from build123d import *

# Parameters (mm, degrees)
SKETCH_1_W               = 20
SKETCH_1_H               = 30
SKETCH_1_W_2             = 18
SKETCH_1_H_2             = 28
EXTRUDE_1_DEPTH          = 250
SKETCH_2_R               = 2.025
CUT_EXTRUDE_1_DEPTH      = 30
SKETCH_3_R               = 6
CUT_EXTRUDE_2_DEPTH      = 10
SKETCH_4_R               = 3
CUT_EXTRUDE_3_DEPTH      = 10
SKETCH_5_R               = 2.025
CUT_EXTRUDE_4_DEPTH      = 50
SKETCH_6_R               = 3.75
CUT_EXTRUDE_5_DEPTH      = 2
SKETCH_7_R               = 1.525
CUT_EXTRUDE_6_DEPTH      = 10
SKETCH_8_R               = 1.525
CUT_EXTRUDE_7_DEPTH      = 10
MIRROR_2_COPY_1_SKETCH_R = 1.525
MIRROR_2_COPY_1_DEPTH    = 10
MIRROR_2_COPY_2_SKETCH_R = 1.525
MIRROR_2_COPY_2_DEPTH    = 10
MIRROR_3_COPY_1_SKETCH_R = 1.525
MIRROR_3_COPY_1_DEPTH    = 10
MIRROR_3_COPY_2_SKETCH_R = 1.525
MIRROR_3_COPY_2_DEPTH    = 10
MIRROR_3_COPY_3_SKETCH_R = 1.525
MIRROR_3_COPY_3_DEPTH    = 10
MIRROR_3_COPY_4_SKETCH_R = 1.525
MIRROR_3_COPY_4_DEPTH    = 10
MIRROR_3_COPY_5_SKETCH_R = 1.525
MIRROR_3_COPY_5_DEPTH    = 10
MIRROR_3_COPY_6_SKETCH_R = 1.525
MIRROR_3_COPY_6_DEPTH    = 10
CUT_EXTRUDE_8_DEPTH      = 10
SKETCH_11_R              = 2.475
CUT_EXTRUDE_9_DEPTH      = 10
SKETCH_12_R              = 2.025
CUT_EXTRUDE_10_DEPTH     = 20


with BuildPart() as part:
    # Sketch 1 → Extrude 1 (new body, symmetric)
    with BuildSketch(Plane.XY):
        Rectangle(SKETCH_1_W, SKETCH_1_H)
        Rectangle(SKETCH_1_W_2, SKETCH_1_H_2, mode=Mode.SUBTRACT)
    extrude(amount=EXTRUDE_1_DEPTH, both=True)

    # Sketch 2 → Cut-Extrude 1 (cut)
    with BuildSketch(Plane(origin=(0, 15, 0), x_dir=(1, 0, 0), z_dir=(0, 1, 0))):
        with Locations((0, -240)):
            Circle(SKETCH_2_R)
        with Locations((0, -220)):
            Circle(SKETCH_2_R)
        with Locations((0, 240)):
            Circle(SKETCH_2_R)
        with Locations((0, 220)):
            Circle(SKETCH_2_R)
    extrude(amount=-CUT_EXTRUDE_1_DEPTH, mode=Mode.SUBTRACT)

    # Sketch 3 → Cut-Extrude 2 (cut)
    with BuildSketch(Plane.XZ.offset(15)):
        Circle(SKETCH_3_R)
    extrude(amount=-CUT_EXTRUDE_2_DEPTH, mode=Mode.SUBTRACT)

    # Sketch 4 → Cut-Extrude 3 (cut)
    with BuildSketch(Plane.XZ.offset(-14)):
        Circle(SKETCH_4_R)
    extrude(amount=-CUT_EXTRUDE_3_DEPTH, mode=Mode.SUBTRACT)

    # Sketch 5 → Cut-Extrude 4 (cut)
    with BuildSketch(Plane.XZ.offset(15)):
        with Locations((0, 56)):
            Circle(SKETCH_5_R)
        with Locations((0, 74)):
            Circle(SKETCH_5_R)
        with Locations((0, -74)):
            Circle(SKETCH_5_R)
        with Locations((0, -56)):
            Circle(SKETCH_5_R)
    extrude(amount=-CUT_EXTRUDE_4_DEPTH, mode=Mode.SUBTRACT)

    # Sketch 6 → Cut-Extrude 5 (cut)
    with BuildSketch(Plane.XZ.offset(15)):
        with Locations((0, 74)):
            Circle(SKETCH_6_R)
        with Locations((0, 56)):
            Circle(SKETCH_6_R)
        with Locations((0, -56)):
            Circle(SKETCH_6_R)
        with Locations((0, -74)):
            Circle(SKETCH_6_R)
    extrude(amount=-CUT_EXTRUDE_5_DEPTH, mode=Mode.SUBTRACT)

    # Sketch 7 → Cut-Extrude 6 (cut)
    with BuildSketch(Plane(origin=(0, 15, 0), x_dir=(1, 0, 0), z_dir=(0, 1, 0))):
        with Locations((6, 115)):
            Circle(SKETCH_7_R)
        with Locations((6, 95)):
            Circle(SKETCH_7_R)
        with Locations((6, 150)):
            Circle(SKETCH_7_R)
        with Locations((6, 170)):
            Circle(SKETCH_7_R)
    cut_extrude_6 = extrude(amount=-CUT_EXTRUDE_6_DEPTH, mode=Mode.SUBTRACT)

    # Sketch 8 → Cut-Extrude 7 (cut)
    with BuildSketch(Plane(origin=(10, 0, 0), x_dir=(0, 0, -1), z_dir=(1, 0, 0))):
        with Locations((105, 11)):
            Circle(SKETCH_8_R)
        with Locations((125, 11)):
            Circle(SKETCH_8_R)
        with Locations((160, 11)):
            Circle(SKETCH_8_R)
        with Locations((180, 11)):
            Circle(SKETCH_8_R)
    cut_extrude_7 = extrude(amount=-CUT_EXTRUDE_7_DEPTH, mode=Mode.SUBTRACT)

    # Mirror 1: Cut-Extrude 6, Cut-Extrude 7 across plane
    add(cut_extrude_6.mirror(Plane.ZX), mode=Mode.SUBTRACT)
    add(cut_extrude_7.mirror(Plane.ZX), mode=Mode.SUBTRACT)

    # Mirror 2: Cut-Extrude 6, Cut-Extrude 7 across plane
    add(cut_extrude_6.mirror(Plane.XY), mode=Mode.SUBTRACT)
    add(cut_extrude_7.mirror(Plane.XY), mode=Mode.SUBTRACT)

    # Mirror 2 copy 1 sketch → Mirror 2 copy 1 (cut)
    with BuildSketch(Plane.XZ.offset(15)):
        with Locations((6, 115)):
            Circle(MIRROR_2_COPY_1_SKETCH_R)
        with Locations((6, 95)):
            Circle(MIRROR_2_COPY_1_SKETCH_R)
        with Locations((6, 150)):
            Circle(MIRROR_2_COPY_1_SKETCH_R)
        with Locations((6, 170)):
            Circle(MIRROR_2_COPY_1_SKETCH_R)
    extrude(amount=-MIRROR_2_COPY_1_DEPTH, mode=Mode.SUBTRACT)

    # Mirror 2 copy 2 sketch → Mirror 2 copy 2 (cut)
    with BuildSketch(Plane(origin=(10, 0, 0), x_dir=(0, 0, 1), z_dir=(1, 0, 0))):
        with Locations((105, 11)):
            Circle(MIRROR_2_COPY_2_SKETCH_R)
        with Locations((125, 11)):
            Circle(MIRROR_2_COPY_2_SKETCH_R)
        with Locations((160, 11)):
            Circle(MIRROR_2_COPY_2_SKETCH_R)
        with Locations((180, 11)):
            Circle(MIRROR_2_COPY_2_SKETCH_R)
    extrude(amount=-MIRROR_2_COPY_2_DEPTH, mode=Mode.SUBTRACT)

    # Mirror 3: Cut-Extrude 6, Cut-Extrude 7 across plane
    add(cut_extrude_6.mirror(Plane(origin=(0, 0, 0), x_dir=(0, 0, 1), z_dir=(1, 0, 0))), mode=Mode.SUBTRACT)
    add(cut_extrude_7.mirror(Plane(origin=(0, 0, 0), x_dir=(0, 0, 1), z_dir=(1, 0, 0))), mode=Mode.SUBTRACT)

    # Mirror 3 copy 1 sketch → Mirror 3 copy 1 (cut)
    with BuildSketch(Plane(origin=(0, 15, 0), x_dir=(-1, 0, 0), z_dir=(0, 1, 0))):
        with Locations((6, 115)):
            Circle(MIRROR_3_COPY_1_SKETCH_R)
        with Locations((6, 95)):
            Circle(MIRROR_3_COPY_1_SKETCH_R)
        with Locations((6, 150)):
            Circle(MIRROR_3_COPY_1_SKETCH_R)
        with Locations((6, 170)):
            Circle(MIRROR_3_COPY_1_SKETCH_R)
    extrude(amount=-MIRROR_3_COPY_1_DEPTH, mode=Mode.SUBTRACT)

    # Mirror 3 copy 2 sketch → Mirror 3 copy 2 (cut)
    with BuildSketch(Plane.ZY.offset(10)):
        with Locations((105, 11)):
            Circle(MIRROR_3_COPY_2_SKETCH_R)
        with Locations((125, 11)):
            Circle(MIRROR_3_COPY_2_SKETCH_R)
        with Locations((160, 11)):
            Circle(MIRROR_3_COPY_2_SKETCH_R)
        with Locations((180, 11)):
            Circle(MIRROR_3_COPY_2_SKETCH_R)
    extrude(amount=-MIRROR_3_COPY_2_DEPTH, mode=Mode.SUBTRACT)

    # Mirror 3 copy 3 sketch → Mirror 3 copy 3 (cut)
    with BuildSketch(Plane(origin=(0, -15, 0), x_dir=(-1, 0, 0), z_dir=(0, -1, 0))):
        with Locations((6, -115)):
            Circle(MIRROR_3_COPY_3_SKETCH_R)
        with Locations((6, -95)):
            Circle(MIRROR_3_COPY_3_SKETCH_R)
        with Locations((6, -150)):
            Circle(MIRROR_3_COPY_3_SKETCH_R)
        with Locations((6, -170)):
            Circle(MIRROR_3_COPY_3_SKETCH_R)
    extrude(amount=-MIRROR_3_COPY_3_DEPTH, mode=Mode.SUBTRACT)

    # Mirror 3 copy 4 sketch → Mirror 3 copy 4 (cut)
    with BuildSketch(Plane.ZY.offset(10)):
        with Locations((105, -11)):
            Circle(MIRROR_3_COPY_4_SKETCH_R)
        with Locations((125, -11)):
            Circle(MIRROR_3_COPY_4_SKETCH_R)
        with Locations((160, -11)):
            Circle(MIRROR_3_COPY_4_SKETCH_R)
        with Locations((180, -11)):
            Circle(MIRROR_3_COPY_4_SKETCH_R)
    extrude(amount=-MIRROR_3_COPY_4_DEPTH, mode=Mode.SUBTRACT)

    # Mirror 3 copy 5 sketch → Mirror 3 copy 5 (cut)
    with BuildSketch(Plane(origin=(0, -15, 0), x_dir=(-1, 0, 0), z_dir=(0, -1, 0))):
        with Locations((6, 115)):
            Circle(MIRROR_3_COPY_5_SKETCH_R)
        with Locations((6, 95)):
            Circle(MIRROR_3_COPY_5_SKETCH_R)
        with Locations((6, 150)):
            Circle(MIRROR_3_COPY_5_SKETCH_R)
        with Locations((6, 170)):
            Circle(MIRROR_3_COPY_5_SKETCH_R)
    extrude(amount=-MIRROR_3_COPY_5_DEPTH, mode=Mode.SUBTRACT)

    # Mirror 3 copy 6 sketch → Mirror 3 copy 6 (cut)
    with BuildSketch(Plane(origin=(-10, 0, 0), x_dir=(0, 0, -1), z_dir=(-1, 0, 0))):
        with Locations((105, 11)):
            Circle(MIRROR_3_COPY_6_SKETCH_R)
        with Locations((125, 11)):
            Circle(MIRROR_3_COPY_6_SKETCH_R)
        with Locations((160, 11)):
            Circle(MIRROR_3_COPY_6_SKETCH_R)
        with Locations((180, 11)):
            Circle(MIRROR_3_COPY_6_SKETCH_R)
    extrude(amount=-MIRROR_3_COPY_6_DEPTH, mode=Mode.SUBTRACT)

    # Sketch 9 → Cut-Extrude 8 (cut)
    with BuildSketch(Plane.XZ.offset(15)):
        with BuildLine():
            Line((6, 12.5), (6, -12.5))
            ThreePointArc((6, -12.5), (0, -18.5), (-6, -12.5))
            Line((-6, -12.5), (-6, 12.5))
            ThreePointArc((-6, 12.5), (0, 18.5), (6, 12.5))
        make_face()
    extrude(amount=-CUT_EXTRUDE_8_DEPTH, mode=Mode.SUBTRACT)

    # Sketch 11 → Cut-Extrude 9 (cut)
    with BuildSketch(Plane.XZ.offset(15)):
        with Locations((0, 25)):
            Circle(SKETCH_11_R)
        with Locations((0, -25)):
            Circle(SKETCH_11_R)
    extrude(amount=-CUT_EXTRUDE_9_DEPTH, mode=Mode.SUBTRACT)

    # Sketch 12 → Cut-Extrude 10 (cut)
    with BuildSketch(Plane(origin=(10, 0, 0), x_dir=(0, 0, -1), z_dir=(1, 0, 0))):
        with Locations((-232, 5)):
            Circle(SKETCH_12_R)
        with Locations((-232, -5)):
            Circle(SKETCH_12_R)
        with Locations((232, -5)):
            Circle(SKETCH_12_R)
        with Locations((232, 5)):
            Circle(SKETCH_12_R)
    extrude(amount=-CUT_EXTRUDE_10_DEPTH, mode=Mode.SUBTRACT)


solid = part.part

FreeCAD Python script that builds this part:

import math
import FreeCAD as App
import Part
import Sketcher
from FreeCAD import Vector

doc = App.newDocument("Part")
body = doc.addObject("PartDesign::Body", "Body")

sketch1 = doc.addObject("Sketcher::SketchObject", "Sketch")
body.addObject(sketch1)
sketch1.AttachmentSupport = (doc.XY_Plane, [""])
sketch1.MapMode = "FlatFace"
sketch1.addGeometry(Part.LineSegment(Vector(-10, 15, 0), Vector(-10, -15, 0)), False)
sketch1.addGeometry(Part.LineSegment(Vector(-10, -15, 0), Vector(10, -15, 0)), False)
sketch1.addGeometry(Part.LineSegment(Vector(10, -15, 0), Vector(10, 15, 0)), False)
sketch1.addGeometry(Part.LineSegment(Vector(10, 15, 0), Vector(-10, 15, 0)), False)
sketch1.addGeometry(Part.LineSegment(Vector(9, -14, 0), Vector(-9, -14, 0)), False)
sketch1.addGeometry(Part.LineSegment(Vector(-9, -14, 0), Vector(-9, 14, 0)), False)
sketch1.addGeometry(Part.LineSegment(Vector(-9, 14, 0), Vector(9, 14, 0)), False)
sketch1.addGeometry(Part.LineSegment(Vector(9, 14, 0), Vector(9, -14, 0)), False)
sketch1.addConstraint(Sketcher.Constraint("Coincident", 0, 2, 1, 1))
sketch1.addConstraint(Sketcher.Constraint("Coincident", 1, 2, 2, 1))
sketch1.addConstraint(Sketcher.Constraint("Coincident", 2, 2, 3, 1))
sketch1.addConstraint(Sketcher.Constraint("Coincident", 3, 2, 0, 1))
sketch1.addConstraint(Sketcher.Constraint("Coincident", 4, 2, 5, 1))
sketch1.addConstraint(Sketcher.Constraint("Coincident", 5, 2, 6, 1))
sketch1.addConstraint(Sketcher.Constraint("Coincident", 6, 2, 7, 1))
sketch1.addConstraint(Sketcher.Constraint("Coincident", 7, 2, 4, 1))
sketch1.addConstraint(Sketcher.Constraint("Vertical", 0))
sketch1.addConstraint(Sketcher.Constraint("Horizontal", 1))
sketch1.addConstraint(Sketcher.Constraint("Vertical", 2))
sketch1.addConstraint(Sketcher.Constraint("Horizontal", 3))
sketch1.addConstraint(Sketcher.Constraint("Horizontal", 4))
sketch1.addConstraint(Sketcher.Constraint("Vertical", 5))
sketch1.addConstraint(Sketcher.Constraint("Horizontal", 6))
sketch1.addConstraint(Sketcher.Constraint("Vertical", 7))
sketch1.addConstraint(Sketcher.Constraint("Symmetric", 0, 2, 2, 2, -1, 1))
sketch1.addConstraint(Sketcher.Constraint("Symmetric", 4, 2, 6, 2, -1, 1))
sketch1.addConstraint(Sketcher.Constraint("DistanceX", 1, 1, 1, 2, 20.0))
sketch1.addConstraint(Sketcher.Constraint("DistanceX", 4, 2, 4, 1, 18.0))
sketch1.addConstraint(Sketcher.Constraint("DistanceY", 0, 2, 0, 1, 30.0))
sketch1.addConstraint(Sketcher.Constraint("DistanceY", 5, 1, 5, 2, 28.0))
pad1 = doc.addObject("PartDesign::Pad", "Pad")
body.addObject(pad1)
pad1.Profile = sketch1
pad1.Length = 500
pad1.Midplane = True

sketch2 = doc.addObject("Sketcher::SketchObject", "Sketch001")
body.addObject(sketch2)
sketch2.AttachmentSupport = (doc.XZ_Plane, [""])
sketch2.MapMode = "FlatFace"
sketch2.AttachmentOffset = App.Placement(Vector(0, 0, -15), App.Rotation())
sketch2.addGeometry(Part.Circle(Vector(0, 240, 0), Vector(0, 0, 1), 2.025), False)
sketch2.addGeometry(Part.Circle(Vector(0, 220, 0), Vector(0, 0, 1), 2.025), False)
sketch2.addGeometry(Part.Circle(Vector(0, -240, 0), Vector(0, 0, 1), 2.025), False)
sketch2.addGeometry(Part.Circle(Vector(0, -220, 0), Vector(0, 0, 1), 2.025), False)
sketch2.addConstraint(Sketcher.Constraint("Equal", 0, 1))
sketch2.addConstraint(Sketcher.Constraint("Equal", 1, 2))
sketch2.addConstraint(Sketcher.Constraint("Equal", 2, 3))
sketch2.addConstraint(Sketcher.Constraint("Symmetric", 0, 3, 2, 3, -1, 1))
sketch2.addConstraint(Sketcher.Constraint("Symmetric", 1, 3, 3, 3, -1, 1))
sketch2.addConstraint(Sketcher.Constraint("PointOnObject", 0, 3, -2))
sketch2.addConstraint(Sketcher.Constraint("PointOnObject", 1, 3, -2))
sketch2.addConstraint(Sketcher.Constraint("Diameter", 0, 4.05))
sketch2.addConstraint(Sketcher.Constraint("DistanceY", -1, 1, 0, 3, 240.0))
sketch2.addConstraint(Sketcher.Constraint("DistanceY", -1, 1, 1, 3, 220.0))
pocket1 = doc.addObject("PartDesign::Pocket", "Pocket")
body.addObject(pocket1)
pocket1.Profile = sketch2
pocket1.Length = 30
pocket1.Reversed = True

sketch3 = doc.addObject("Sketcher::SketchObject", "Sketch002")
body.addObject(sketch3)
sketch3.AttachmentSupport = (doc.XZ_Plane, [""])
sketch3.MapMode = "FlatFace"
sketch3.AttachmentOffset = App.Placement(Vector(0, 0, 15), App.Rotation())
sketch3.addGeometry(Part.Circle(Vector(0, 0, 0), Vector(0, 0, 1), 6), False)
sketch3.addConstraint(Sketcher.Constraint("Coincident", 0, 3, -1, 1))
sketch3.addConstraint(Sketcher.Constraint("Diameter", 0, 12.0))
pocket2 = doc.addObject("PartDesign::Pocket", "Pocket001")
body.addObject(pocket2)
pocket2.Profile = sketch3
pocket2.Length = 10

sketch4 = doc.addObject("Sketcher::SketchObject", "Sketch003")
body.addObject(sketch4)
sketch4.AttachmentSupport = (doc.XZ_Plane, [""])
sketch4.MapMode = "FlatFace"
sketch4.AttachmentOffset = App.Placement(Vector(0, 0, -14), App.Rotation())
sketch4.addGeometry(Part.Circle(Vector(0, 0, 0), Vector(0, 0, 1), 3), False)
sketch4.addConstraint(Sketcher.Constraint("Coincident", 0, 3, -1, 1))
sketch4.addConstraint(Sketcher.Constraint("Diameter", 0, 6.0))
pocket3 = doc.addObject("PartDesign::Pocket", "Pocket002")
body.addObject(pocket3)
pocket3.Profile = sketch4
pocket3.Length = 10

sketch5 = doc.addObject("Sketcher::SketchObject", "Sketch004")
body.addObject(sketch5)
sketch5.AttachmentSupport = (doc.XZ_Plane, [""])
sketch5.MapMode = "FlatFace"
sketch5.AttachmentOffset = App.Placement(Vector(0, 0, 15), App.Rotation())
sketch5.addGeometry(Part.Circle(Vector(0, 56, 0), Vector(0, 0, 1), 2.025), False)
sketch5.addGeometry(Part.Circle(Vector(0, 74, 0), Vector(0, 0, 1), 2.025), False)
sketch5.addGeometry(Part.Circle(Vector(0, -74, 0), Vector(0, 0, 1), 2.025), False)
sketch5.addGeometry(Part.Circle(Vector(0, -56, 0), Vector(0, 0, 1), 2.025), False)
sketch5.addConstraint(Sketcher.Constraint("Equal", 0, 1))
sketch5.addConstraint(Sketcher.Constraint("Equal", 1, 2))
sketch5.addConstraint(Sketcher.Constraint("Equal", 2, 3))
sketch5.addConstraint(Sketcher.Constraint("Symmetric", 1, 3, 2, 3, -1, 1))
sketch5.addConstraint(Sketcher.Constraint("Symmetric", 0, 3, 3, 3, -1, 1))
sketch5.addConstraint(Sketcher.Constraint("PointOnObject", 0, 3, -2))
sketch5.addConstraint(Sketcher.Constraint("PointOnObject", 1, 3, -2))
sketch5.addConstraint(Sketcher.Constraint("Diameter", 0, 4.05))
sketch5.addConstraint(Sketcher.Constraint("DistanceY", -1, 1, 0, 3, 56.0))
sketch5.addConstraint(Sketcher.Constraint("DistanceY", -1, 1, 1, 3, 74.0))
pocket4 = doc.addObject("PartDesign::Pocket", "Pocket003")
body.addObject(pocket4)
pocket4.Profile = sketch5
pocket4.Length = 50

sketch6 = doc.addObject("Sketcher::SketchObject", "Sketch005")
body.addObject(sketch6)
sketch6.AttachmentSupport = (doc.XZ_Plane, [""])
sketch6.MapMode = "FlatFace"
sketch6.AttachmentOffset = App.Placement(Vector(0, 0, 15), App.Rotation())
sketch6.addGeometry(Part.Circle(Vector(0, 74, 0), Vector(0, 0, 1), 3.75), False)
sketch6.addGeometry(Part.Circle(Vector(0, 56, 0), Vector(0, 0, 1), 3.75), False)
sketch6.addGeometry(Part.Circle(Vector(0, -56, 0), Vector(0, 0, 1), 3.75), False)
sketch6.addGeometry(Part.Circle(Vector(0, -74, 0), Vector(0, 0, 1), 3.75), False)
sketch6.addConstraint(Sketcher.Constraint("Equal", 0, 1))
sketch6.addConstraint(Sketcher.Constraint("Equal", 1, 2))
sketch6.addConstraint(Sketcher.Constraint("Equal", 2, 3))
sketch6.addConstraint(Sketcher.Constraint("Symmetric", 1, 3, 2, 3, -1, 1))
sketch6.addConstraint(Sketcher.Constraint("Symmetric", 0, 3, 3, 3, -1, 1))
sketch6.addConstraint(Sketcher.Constraint("PointOnObject", 0, 3, -2))
sketch6.addConstraint(Sketcher.Constraint("PointOnObject", 1, 3, -2))
sketch6.addConstraint(Sketcher.Constraint("Diameter", 0, 7.5))
sketch6.addConstraint(Sketcher.Constraint("DistanceY", -1, 1, 0, 3, 74.0))
sketch6.addConstraint(Sketcher.Constraint("DistanceY", -1, 1, 1, 3, 56.0))
pocket5 = doc.addObject("PartDesign::Pocket", "Pocket004")
body.addObject(pocket5)
pocket5.Profile = sketch6
pocket5.Length = 2

sketch7 = doc.addObject("Sketcher::SketchObject", "Sketch006")
body.addObject(sketch7)
sketch7.AttachmentSupport = (doc.XZ_Plane, [""])
sketch7.MapMode = "FlatFace"
sketch7.AttachmentOffset = App.Placement(Vector(0, 0, -15), App.Rotation())
sketch7.addGeometry(Part.Circle(Vector(6, -115, 0), Vector(0, 0, 1), 1.525), False)
sketch7.addGeometry(Part.Circle(Vector(6, -95, 0), Vector(0, 0, 1), 1.525), False)
sketch7.addGeometry(Part.Circle(Vector(6, -150, 0), Vector(0, 0, 1), 1.525), False)
sketch7.addGeometry(Part.Circle(Vector(6, -170, 0), Vector(0, 0, 1), 1.525), False)
sketch7.addConstraint(Sketcher.Constraint("Equal", 0, 1))
sketch7.addConstraint(Sketcher.Constraint("Equal", 1, 2))
sketch7.addConstraint(Sketcher.Constraint("Equal", 2, 3))
sketch7.addConstraint(Sketcher.Constraint("Vertical", 0, 3, 1, 3))
sketch7.addConstraint(Sketcher.Constraint("Vertical", 1, 3, 2, 3))
sketch7.addConstraint(Sketcher.Constraint("Vertical", 2, 3, 3, 3))
sketch7.addConstraint(Sketcher.Constraint("Diameter", 0, 3.05))
sketch7.addConstraint(Sketcher.Constraint("DistanceX", -1, 1, 0, 3, 6.0))
sketch7.addConstraint(Sketcher.Constraint("DistanceY", 0, 3, -1, 1, 115.0))
sketch7.addConstraint(Sketcher.Constraint("DistanceY", 1, 3, -1, 1, 95.0))
sketch7.addConstraint(Sketcher.Constraint("DistanceY", 2, 3, -1, 1, 150.0))
sketch7.addConstraint(Sketcher.Constraint("DistanceY", 3, 3, -1, 1, 170.0))
pocket6 = doc.addObject("PartDesign::Pocket", "Pocket005")
body.addObject(pocket6)
pocket6.Profile = sketch7
pocket6.Length = 10
pocket6.Reversed = True

sketch8 = doc.addObject("Sketcher::SketchObject", "Sketch007")
body.addObject(sketch8)
sketch8.AttachmentSupport = (doc.YZ_Plane, [""])
sketch8.MapMode = "FlatFace"
sketch8.AttachmentOffset = App.Placement(Vector(0, 0, 10), App.Rotation())
sketch8.addGeometry(Part.Circle(Vector(11, -105, 0), Vector(0, 0, 1), 1.525), False)
sketch8.addGeometry(Part.Circle(Vector(11, -125, 0), Vector(0, 0, 1), 1.525), False)
sketch8.addGeometry(Part.Circle(Vector(11, -160, 0), Vector(0, 0, 1), 1.525), False)
sketch8.addGeometry(Part.Circle(Vector(11, -180, 0), Vector(0, 0, 1), 1.525), False)
sketch8.addConstraint(Sketcher.Constraint("Equal", 0, 1))
sketch8.addConstraint(Sketcher.Constraint("Equal", 1, 2))
sketch8.addConstraint(Sketcher.Constraint("Equal", 2, 3))
sketch8.addConstraint(Sketcher.Constraint("Vertical", 0, 3, 1, 3))
sketch8.addConstraint(Sketcher.Constraint("Vertical", 1, 3, 2, 3))
sketch8.addConstraint(Sketcher.Constraint("Vertical", 2, 3, 3, 3))
sketch8.addConstraint(Sketcher.Constraint("Diameter", 0, 3.05))
sketch8.addConstraint(Sketcher.Constraint("DistanceX", -1, 1, 0, 3, 11.0))
sketch8.addConstraint(Sketcher.Constraint("DistanceY", 0, 3, -1, 1, 105.0))
sketch8.addConstraint(Sketcher.Constraint("DistanceY", 1, 3, -1, 1, 125.0))
sketch8.addConstraint(Sketcher.Constraint("DistanceY", 2, 3, -1, 1, 160.0))
sketch8.addConstraint(Sketcher.Constraint("DistanceY", 3, 3, -1, 1, 180.0))
pocket7 = doc.addObject("PartDesign::Pocket", "Pocket006")
body.addObject(pocket7)
pocket7.Profile = sketch8
pocket7.Length = 10
doc.recompute()

mirrored = doc.addObject("PartDesign::Mirrored", "Mirrored")
body.addObject(mirrored)
mirrored.Originals = [pocket6, pocket7]
mirrored.MirrorPlane = (doc.XZ_Plane, [""])
body.Tip = mirrored
doc.recompute()

mirrored2 = doc.addObject("PartDesign::Mirrored", "Mirrored001")
body.addObject(mirrored2)
mirrored2.Originals = [pocket6, pocket7]
mirrored2.MirrorPlane = (doc.XY_Plane, [""])
body.Tip = mirrored2

sketch9 = doc.addObject("Sketcher::SketchObject", "Sketch008")
body.addObject(sketch9)
sketch9.AttachmentSupport = (doc.XZ_Plane, [""])
sketch9.MapMode = "FlatFace"
sketch9.AttachmentOffset = App.Placement(Vector(0, 0, 15), App.Rotation())
sketch9.addGeometry(Part.Circle(Vector(6, 115, 0), Vector(0, 0, 1), 1.525), False)
sketch9.addGeometry(Part.Circle(Vector(6, 95, 0), Vector(0, 0, 1), 1.525), False)
sketch9.addGeometry(Part.Circle(Vector(6, 150, 0), Vector(0, 0, 1), 1.525), False)
sketch9.addGeometry(Part.Circle(Vector(6, 170, 0), Vector(0, 0, 1), 1.525), False)
sketch9.addConstraint(Sketcher.Constraint("Equal", 0, 1))
sketch9.addConstraint(Sketcher.Constraint("Equal", 1, 2))
sketch9.addConstraint(Sketcher.Constraint("Equal", 2, 3))
sketch9.addConstraint(Sketcher.Constraint("Vertical", 0, 3, 1, 3))
sketch9.addConstraint(Sketcher.Constraint("Vertical", 1, 3, 2, 3))
sketch9.addConstraint(Sketcher.Constraint("Vertical", 2, 3, 3, 3))
sketch9.addConstraint(Sketcher.Constraint("Diameter", 0, 3.05))
sketch9.addConstraint(Sketcher.Constraint("DistanceX", -1, 1, 0, 3, 6.0))
sketch9.addConstraint(Sketcher.Constraint("DistanceY", -1, 1, 0, 3, 115.0))
sketch9.addConstraint(Sketcher.Constraint("DistanceY", -1, 1, 1, 3, 95.0))
sketch9.addConstraint(Sketcher.Constraint("DistanceY", -1, 1, 2, 3, 150.0))
sketch9.addConstraint(Sketcher.Constraint("DistanceY", -1, 1, 3, 3, 170.0))
pocket8 = doc.addObject("PartDesign::Pocket", "Pocket007")
body.addObject(pocket8)
pocket8.Profile = sketch9
pocket8.Length = 10

sketch10 = doc.addObject("Sketcher::SketchObject", "Sketch009")
body.addObject(sketch10)
sketch10.AttachmentSupport = (doc.YZ_Plane, [""])
sketch10.MapMode = "FlatFace"
sketch10.AttachmentOffset = App.Placement(Vector(0, 0, 10), App.Rotation())
sketch10.addGeometry(Part.Circle(Vector(-11, 105, 0), Vector(0, 0, 1), 1.525), False)
sketch10.addGeometry(Part.Circle(Vector(-11, 125, 0), Vector(0, 0, 1), 1.525), False)
sketch10.addGeometry(Part.Circle(Vector(-11, 160, 0), Vector(0, 0, 1), 1.525), False)
sketch10.addGeometry(Part.Circle(Vector(-11, 180, 0), Vector(0, 0, 1), 1.525), False)
sketch10.addConstraint(Sketcher.Constraint("Equal", 0, 1))
sketch10.addConstraint(Sketcher.Constraint("Equal", 1, 2))
sketch10.addConstraint(Sketcher.Constraint("Equal", 2, 3))
sketch10.addConstraint(Sketcher.Constraint("Vertical", 0, 3, 1, 3))
sketch10.addConstraint(Sketcher.Constraint("Vertical", 1, 3, 2, 3))
sketch10.addConstraint(Sketcher.Constraint("Vertical", 2, 3, 3, 3))
sketch10.addConstraint(Sketcher.Constraint("Diameter", 0, 3.05))
sketch10.addConstraint(Sketcher.Constraint("DistanceX", 0, 3, -1, 1, 11.0))
sketch10.addConstraint(Sketcher.Constraint("DistanceY", -1, 1, 0, 3, 105.0))
sketch10.addConstraint(Sketcher.Constraint("DistanceY", -1, 1, 1, 3, 125.0))
sketch10.addConstraint(Sketcher.Constraint("DistanceY", -1, 1, 2, 3, 160.0))
sketch10.addConstraint(Sketcher.Constraint("DistanceY", -1, 1, 3, 3, 180.0))
pocket9 = doc.addObject("PartDesign::Pocket", "Pocket008")
body.addObject(pocket9)
pocket9.Profile = sketch10
pocket9.Length = 10
doc.recompute()

mirrored3 = doc.addObject("PartDesign::Mirrored", "Mirrored002")
body.addObject(mirrored3)
mirrored3.Originals = [pocket6, pocket7]
mirrored3.MirrorPlane = (doc.YZ_Plane, [""])
body.Tip = mirrored3

sketch11 = doc.addObject("Sketcher::SketchObject", "Sketch010")
body.addObject(sketch11)
sketch11.AttachmentSupport = (doc.XZ_Plane, [""])
sketch11.MapMode = "FlatFace"
sketch11.AttachmentOffset = App.Placement(Vector(0, 0, -15), App.Rotation())
sketch11.addGeometry(Part.Circle(Vector(-6, 115, 0), Vector(0, 0, 1), 1.525), False)
sketch11.addGeometry(Part.Circle(Vector(-6, 95, 0), Vector(0, 0, 1), 1.525), False)
sketch11.addGeometry(Part.Circle(Vector(-6, 150, 0), Vector(0, 0, 1), 1.525), False)
sketch11.addGeometry(Part.Circle(Vector(-6, 170, 0), Vector(0, 0, 1), 1.525), False)
sketch11.addConstraint(Sketcher.Constraint("Equal", 0, 1))
sketch11.addConstraint(Sketcher.Constraint("Equal", 1, 2))
sketch11.addConstraint(Sketcher.Constraint("Equal", 2, 3))
sketch11.addConstraint(Sketcher.Constraint("Vertical", 0, 3, 1, 3))
sketch11.addConstraint(Sketcher.Constraint("Vertical", 1, 3, 2, 3))
sketch11.addConstraint(Sketcher.Constraint("Vertical", 2, 3, 3, 3))
sketch11.addConstraint(Sketcher.Constraint("Diameter", 0, 3.05))
sketch11.addConstraint(Sketcher.Constraint("DistanceX", 0, 3, -1, 1, 6.0))
sketch11.addConstraint(Sketcher.Constraint("DistanceY", -1, 1, 0, 3, 115.0))
sketch11.addConstraint(Sketcher.Constraint("DistanceY", -1, 1, 1, 3, 95.0))
sketch11.addConstraint(Sketcher.Constraint("DistanceY", -1, 1, 2, 3, 150.0))
sketch11.addConstraint(Sketcher.Constraint("DistanceY", -1, 1, 3, 3, 170.0))
pocket10 = doc.addObject("PartDesign::Pocket", "Pocket009")
body.addObject(pocket10)
pocket10.Profile = sketch11
pocket10.Length = 10
pocket10.Reversed = True

sketch12 = doc.addObject("Sketcher::SketchObject", "Sketch011")
body.addObject(sketch12)
sketch12.AttachmentSupport = (doc.YZ_Plane, [""])
sketch12.MapMode = "FlatFace"
sketch12.AttachmentOffset = App.Placement(Vector(0, 0, -10), App.Rotation())
sketch12.addGeometry(Part.Circle(Vector(11, 105, 0), Vector(0, 0, 1), 1.525), False)
sketch12.addGeometry(Part.Circle(Vector(11, 125, 0), Vector(0, 0, 1), 1.525), False)
sketch12.addGeometry(Part.Circle(Vector(11, 160, 0), Vector(0, 0, 1), 1.525), False)
sketch12.addGeometry(Part.Circle(Vector(11, 180, 0), Vector(0, 0, 1), 1.525), False)
sketch12.addConstraint(Sketcher.Constraint("Equal", 0, 1))
sketch12.addConstraint(Sketcher.Constraint("Equal", 1, 2))
sketch12.addConstraint(Sketcher.Constraint("Equal", 2, 3))
sketch12.addConstraint(Sketcher.Constraint("Vertical", 0, 3, 1, 3))
sketch12.addConstraint(Sketcher.Constraint("Vertical", 1, 3, 2, 3))
sketch12.addConstraint(Sketcher.Constraint("Vertical", 2, 3, 3, 3))
sketch12.addConstraint(Sketcher.Constraint("Diameter", 0, 3.05))
sketch12.addConstraint(Sketcher.Constraint("DistanceX", -1, 1, 0, 3, 11.0))
sketch12.addConstraint(Sketcher.Constraint("DistanceY", -1, 1, 0, 3, 105.0))
sketch12.addConstraint(Sketcher.Constraint("DistanceY", -1, 1, 1, 3, 125.0))
sketch12.addConstraint(Sketcher.Constraint("DistanceY", -1, 1, 2, 3, 160.0))
sketch12.addConstraint(Sketcher.Constraint("DistanceY", -1, 1, 3, 3, 180.0))
pocket11 = doc.addObject("PartDesign::Pocket", "Pocket010")
body.addObject(pocket11)
pocket11.Profile = sketch12
pocket11.Length = 10
pocket11.Reversed = True

sketch13 = doc.addObject("Sketcher::SketchObject", "Sketch012")
body.addObject(sketch13)
sketch13.AttachmentSupport = (doc.XZ_Plane, [""])
sketch13.MapMode = "FlatFace"
sketch13.AttachmentOffset = App.Placement(Vector(0, 0, 15), App.Rotation())
sketch13.addGeometry(Part.Circle(Vector(-6, 115, 0), Vector(0, 0, 1), 1.525), False)
sketch13.addGeometry(Part.Circle(Vector(-6, 95, 0), Vector(0, 0, 1), 1.525), False)
sketch13.addGeometry(Part.Circle(Vector(-6, 150, 0), Vector(0, 0, 1), 1.525), False)
sketch13.addGeometry(Part.Circle(Vector(-6, 170, 0), Vector(0, 0, 1), 1.525), False)
sketch13.addConstraint(Sketcher.Constraint("Equal", 0, 1))
sketch13.addConstraint(Sketcher.Constraint("Equal", 1, 2))
sketch13.addConstraint(Sketcher.Constraint("Equal", 2, 3))
sketch13.addConstraint(Sketcher.Constraint("Vertical", 0, 3, 1, 3))
sketch13.addConstraint(Sketcher.Constraint("Vertical", 1, 3, 2, 3))
sketch13.addConstraint(Sketcher.Constraint("Vertical", 2, 3, 3, 3))
sketch13.addConstraint(Sketcher.Constraint("Diameter", 0, 3.05))
sketch13.addConstraint(Sketcher.Constraint("DistanceX", 0, 3, -1, 1, 6.0))
sketch13.addConstraint(Sketcher.Constraint("DistanceY", -1, 1, 0, 3, 115.0))
sketch13.addConstraint(Sketcher.Constraint("DistanceY", -1, 1, 1, 3, 95.0))
sketch13.addConstraint(Sketcher.Constraint("DistanceY", -1, 1, 2, 3, 150.0))
sketch13.addConstraint(Sketcher.Constraint("DistanceY", -1, 1, 3, 3, 170.0))
pocket12 = doc.addObject("PartDesign::Pocket", "Pocket011")
body.addObject(pocket12)
pocket12.Profile = sketch13
pocket12.Length = 10

sketch14 = doc.addObject("Sketcher::SketchObject", "Sketch013")
body.addObject(sketch14)
sketch14.AttachmentSupport = (doc.YZ_Plane, [""])
sketch14.MapMode = "FlatFace"
sketch14.AttachmentOffset = App.Placement(Vector(0, 0, -10), App.Rotation())
sketch14.addGeometry(Part.Circle(Vector(-11, 105, 0), Vector(0, 0, 1), 1.525), False)
sketch14.addGeometry(Part.Circle(Vector(-11, 125, 0), Vector(0, 0, 1), 1.525), False)
sketch14.addGeometry(Part.Circle(Vector(-11, 160, 0), Vector(0, 0, 1), 1.525), False)
sketch14.addGeometry(Part.Circle(Vector(-11, 180, 0), Vector(0, 0, 1), 1.525), False)
sketch14.addConstraint(Sketcher.Constraint("Equal", 0, 1))
sketch14.addConstraint(Sketcher.Constraint("Equal", 1, 2))
sketch14.addConstraint(Sketcher.Constraint("Equal", 2, 3))
sketch14.addConstraint(Sketcher.Constraint("Vertical", 0, 3, 1, 3))
sketch14.addConstraint(Sketcher.Constraint("Vertical", 1, 3, 2, 3))
sketch14.addConstraint(Sketcher.Constraint("Vertical", 2, 3, 3, 3))
sketch14.addConstraint(Sketcher.Constraint("Diameter", 0, 3.05))
sketch14.addConstraint(Sketcher.Constraint("DistanceX", 0, 3, -1, 1, 11.0))
sketch14.addConstraint(Sketcher.Constraint("DistanceY", -1, 1, 0, 3, 105.0))
sketch14.addConstraint(Sketcher.Constraint("DistanceY", -1, 1, 1, 3, 125.0))
sketch14.addConstraint(Sketcher.Constraint("DistanceY", -1, 1, 2, 3, 160.0))
sketch14.addConstraint(Sketcher.Constraint("DistanceY", -1, 1, 3, 3, 180.0))
pocket13 = doc.addObject("PartDesign::Pocket", "Pocket012")
body.addObject(pocket13)
pocket13.Profile = sketch14
pocket13.Length = 10
pocket13.Reversed = True

sketch15 = doc.addObject("Sketcher::SketchObject", "Sketch014")
body.addObject(sketch15)
sketch15.AttachmentSupport = (doc.XZ_Plane, [""])
sketch15.MapMode = "FlatFace"
sketch15.AttachmentOffset = App.Placement(Vector(0, 0, 15), App.Rotation())
sketch15.addGeometry(Part.Circle(Vector(-6, -115, 0), Vector(0, 0, 1), 1.525), False)
sketch15.addGeometry(Part.Circle(Vector(-6, -95, 0), Vector(0, 0, 1), 1.525), False)
sketch15.addGeometry(Part.Circle(Vector(-6, -150, 0), Vector(0, 0, 1), 1.525), False)
sketch15.addGeometry(Part.Circle(Vector(-6, -170, 0), Vector(0, 0, 1), 1.525), False)
sketch15.addConstraint(Sketcher.Constraint("Equal", 0, 1))
sketch15.addConstraint(Sketcher.Constraint("Equal", 1, 2))
sketch15.addConstraint(Sketcher.Constraint("Equal", 2, 3))
sketch15.addConstraint(Sketcher.Constraint("Vertical", 0, 3, 1, 3))
sketch15.addConstraint(Sketcher.Constraint("Vertical", 1, 3, 2, 3))
sketch15.addConstraint(Sketcher.Constraint("Vertical", 2, 3, 3, 3))
sketch15.addConstraint(Sketcher.Constraint("Diameter", 0, 3.05))
sketch15.addConstraint(Sketcher.Constraint("DistanceX", 0, 3, -1, 1, 6.0))
sketch15.addConstraint(Sketcher.Constraint("DistanceY", 0, 3, -1, 1, 115.0))
sketch15.addConstraint(Sketcher.Constraint("DistanceY", 1, 3, -1, 1, 95.0))
sketch15.addConstraint(Sketcher.Constraint("DistanceY", 2, 3, -1, 1, 150.0))
sketch15.addConstraint(Sketcher.Constraint("DistanceY", 3, 3, -1, 1, 170.0))
pocket14 = doc.addObject("PartDesign::Pocket", "Pocket013")
body.addObject(pocket14)
pocket14.Profile = sketch15
pocket14.Length = 10

sketch16 = doc.addObject("Sketcher::SketchObject", "Sketch015")
body.addObject(sketch16)
sketch16.AttachmentSupport = (doc.YZ_Plane, [""])
sketch16.MapMode = "FlatFace"
sketch16.AttachmentOffset = App.Placement(Vector(0, 0, -10), App.Rotation())
sketch16.addGeometry(Part.Circle(Vector(-11, -105, 0), Vector(0, 0, 1), 1.525), False)
sketch16.addGeometry(Part.Circle(Vector(-11, -125, 0), Vector(0, 0, 1), 1.525), False)
sketch16.addGeometry(Part.Circle(Vector(-11, -160, 0), Vector(0, 0, 1), 1.525), False)
sketch16.addGeometry(Part.Circle(Vector(-11, -180, 0), Vector(0, 0, 1), 1.525), False)
sketch16.addConstraint(Sketcher.Constraint("Equal", 0, 1))
sketch16.addConstraint(Sketcher.Constraint("Equal", 1, 2))
sketch16.addConstraint(Sketcher.Constraint("Equal", 2, 3))
sketch16.addConstraint(Sketcher.Constraint("Vertical", 0, 3, 1, 3))
sketch16.addConstraint(Sketcher.Constraint("Vertical", 1, 3, 2, 3))
sketch16.addConstraint(Sketcher.Constraint("Vertical", 2, 3, 3, 3))
sketch16.addConstraint(Sketcher.Constraint("Diameter", 0, 3.05))
sketch16.addConstraint(Sketcher.Constraint("DistanceX", 0, 3, -1, 1, 11.0))
sketch16.addConstraint(Sketcher.Constraint("DistanceY", 0, 3, -1, 1, 105.0))
sketch16.addConstraint(Sketcher.Constraint("DistanceY", 1, 3, -1, 1, 125.0))
sketch16.addConstraint(Sketcher.Constraint("DistanceY", 2, 3, -1, 1, 160.0))
sketch16.addConstraint(Sketcher.Constraint("DistanceY", 3, 3, -1, 1, 180.0))
pocket15 = doc.addObject("PartDesign::Pocket", "Pocket014")
body.addObject(pocket15)
pocket15.Profile = sketch16
pocket15.Length = 10
pocket15.Reversed = True

sketch17 = doc.addObject("Sketcher::SketchObject", "Sketch016")
body.addObject(sketch17)
sketch17.AttachmentSupport = (doc.XZ_Plane, [""])
sketch17.MapMode = "FlatFace"
sketch17.AttachmentOffset = App.Placement(Vector(0, 0, 15), App.Rotation())
sketch17.addGeometry(Part.LineSegment(Vector(6, -12.5, 0), Vector(6, 12.5, 0)), False)
sketch17.addGeometry(Part.ArcOfCircle(Part.Circle(Vector(0, 12.5, 0), Vector(0, 0, 1), 6), math.radians(0), math.radians(180)), False)
sketch17.addGeometry(Part.LineSegment(Vector(-6, 12.5, 0), Vector(-6, -12.5, 0)), False)
sketch17.addGeometry(Part.ArcOfCircle(Part.Circle(Vector(0, -12.5, 0), Vector(0, 0, 1), 6), math.radians(180), math.radians(360)), False)
sketch17.addConstraint(Sketcher.Constraint("Tangent", 0, 2, 1, 1))
sketch17.addConstraint(Sketcher.Constraint("Tangent", 1, 2, 2, 1))
sketch17.addConstraint(Sketcher.Constraint("Tangent", 2, 2, 3, 1))
sketch17.addConstraint(Sketcher.Constraint("Tangent", 3, 2, 0, 1))
sketch17.addConstraint(Sketcher.Constraint("Vertical", 0))
sketch17.addConstraint(Sketcher.Constraint("Vertical", 2))
sketch17.addConstraint(Sketcher.Constraint("Symmetric", 1, 3, 3, 3, -1, 1))
sketch17.addConstraint(Sketcher.Constraint("Radius", 1, 6.0))
sketch17.addConstraint(Sketcher.Constraint("DistanceY", 0, 1, 0, 2, 25.0))
pocket16 = doc.addObject("PartDesign::Pocket", "Pocket015")
body.addObject(pocket16)
pocket16.Profile = sketch17
pocket16.Length = 10

sketch18 = doc.addObject("Sketcher::SketchObject", "Sketch017")
body.addObject(sketch18)
sketch18.AttachmentSupport = (doc.XZ_Plane, [""])
sketch18.MapMode = "FlatFace"
sketch18.AttachmentOffset = App.Placement(Vector(0, 0, 15), App.Rotation())
sketch18.addGeometry(Part.Circle(Vector(0, 25, 0), Vector(0, 0, 1), 2.475), False)
sketch18.addGeometry(Part.Circle(Vector(0, -25, 0), Vector(0, 0, 1), 2.475), False)
sketch18.addConstraint(Sketcher.Constraint("Equal", 0, 1))
sketch18.addConstraint(Sketcher.Constraint("Symmetric", 0, 3, 1, 3, -1, 1))
sketch18.addConstraint(Sketcher.Constraint("PointOnObject", 0, 3, -2))
sketch18.addConstraint(Sketcher.Constraint("Diameter", 0, 4.95))
sketch18.addConstraint(Sketcher.Constraint("DistanceY", -1, 1, 0, 3, 25.0))
pocket17 = doc.addObject("PartDesign::Pocket", "Pocket016")
body.addObject(pocket17)
pocket17.Profile = sketch18
pocket17.Length = 10

sketch19 = doc.addObject("Sketcher::SketchObject", "Sketch018")
body.addObject(sketch19)
sketch19.AttachmentSupport = (doc.YZ_Plane, [""])
sketch19.MapMode = "FlatFace"
sketch19.AttachmentOffset = App.Placement(Vector(0, 0, 10), App.Rotation())
sketch19.addGeometry(Part.Circle(Vector(5, 232, 0), Vector(0, 0, 1), 2.025), False)
sketch19.addGeometry(Part.Circle(Vector(-5, 232, 0), Vector(0, 0, 1), 2.025), False)
sketch19.addGeometry(Part.Circle(Vector(-5, -232, 0), Vector(0, 0, 1), 2.025), False)
sketch19.addGeometry(Part.Circle(Vector(5, -232, 0), Vector(0, 0, 1), 2.025), False)
sketch19.addConstraint(Sketcher.Constraint("Equal", 0, 1))
sketch19.addConstraint(Sketcher.Constraint("Equal", 1, 2))
sketch19.addConstraint(Sketcher.Constraint("Equal", 2, 3))
sketch19.addConstraint(Sketcher.Constraint("Symmetric", 0, 3, 2, 3, -1, 1))
sketch19.addConstraint(Sketcher.Constraint("Symmetric", 1, 3, 3, 3, -1, 1))
sketch19.addConstraint(Sketcher.Constraint("Symmetric", 0, 3, 1, 3, -2))
sketch19.addConstraint(Sketcher.Constraint("Diameter", 0, 4.05))
sketch19.addConstraint(Sketcher.Constraint("DistanceX", -1, 1, 0, 3, 5.0))
sketch19.addConstraint(Sketcher.Constraint("DistanceY", -1, 1, 0, 3, 232.0))
pocket18 = doc.addObject("PartDesign::Pocket", "Pocket017")
body.addObject(pocket18)
pocket18.Profile = sketch19
pocket18.Length = 20

doc.recompute()
